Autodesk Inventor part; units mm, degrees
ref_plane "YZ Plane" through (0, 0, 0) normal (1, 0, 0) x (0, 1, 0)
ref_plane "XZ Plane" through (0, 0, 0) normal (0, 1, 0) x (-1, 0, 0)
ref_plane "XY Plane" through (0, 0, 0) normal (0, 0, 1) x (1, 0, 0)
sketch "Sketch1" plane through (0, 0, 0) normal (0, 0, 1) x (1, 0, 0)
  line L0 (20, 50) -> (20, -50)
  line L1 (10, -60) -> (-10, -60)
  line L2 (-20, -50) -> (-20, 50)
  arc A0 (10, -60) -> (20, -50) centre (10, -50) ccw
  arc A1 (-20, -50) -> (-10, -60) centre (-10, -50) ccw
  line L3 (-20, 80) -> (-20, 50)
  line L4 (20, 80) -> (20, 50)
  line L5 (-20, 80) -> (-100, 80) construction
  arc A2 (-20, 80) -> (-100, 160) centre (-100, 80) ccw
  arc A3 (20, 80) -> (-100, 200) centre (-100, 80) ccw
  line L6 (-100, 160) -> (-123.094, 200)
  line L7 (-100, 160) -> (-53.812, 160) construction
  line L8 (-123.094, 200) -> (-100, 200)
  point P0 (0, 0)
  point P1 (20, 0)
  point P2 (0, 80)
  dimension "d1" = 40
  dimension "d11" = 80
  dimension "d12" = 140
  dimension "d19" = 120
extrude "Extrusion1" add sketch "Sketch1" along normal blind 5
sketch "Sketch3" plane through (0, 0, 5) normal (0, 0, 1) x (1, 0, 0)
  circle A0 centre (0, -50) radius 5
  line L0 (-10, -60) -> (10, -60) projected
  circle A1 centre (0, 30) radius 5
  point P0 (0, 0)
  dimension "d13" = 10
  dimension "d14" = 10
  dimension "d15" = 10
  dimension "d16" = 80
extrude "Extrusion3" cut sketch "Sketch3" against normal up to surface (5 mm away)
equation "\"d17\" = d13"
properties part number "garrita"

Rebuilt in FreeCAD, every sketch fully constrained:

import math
import FreeCAD as App
import Part
import Sketcher

V = App.Vector
Q = App.Units.Quantity

doc = App.newDocument("Part")
body = doc.addObject("PartDesign::Body", "Body")

sketch1 = doc.addObject("Sketcher::SketchObject", "Sketch")
body.addObject(sketch1)
sketch1.AttachmentSupport = (doc.XY_Plane, [""])
sketch1.MapMode = "FlatFace"
sketch1.addGeometry([
    Part.LineSegment(V(20, -50, 0), V(20, 80, 0)),
    Part.ArcOfCircle(Part.Circle(V(-100, 80, 0), V(0, 0, 1), 120), math.radians(0), math.radians(90)),
    Part.LineSegment(V(-100, 200, 0), V(-123.094, 200, 0)),
    Part.LineSegment(V(-123.094, 200, 0), V(-100, 160, 0)),
    Part.ArcOfCircle(Part.Circle(V(-100, 80, 0), V(0, 0, 1), 80), math.radians(0), math.radians(90)),
    Part.LineSegment(V(-20, 80, 0), V(-20, -50, 0)),
    Part.ArcOfCircle(Part.Circle(V(-10, -50, 0), V(0, 0, 1), 10), math.radians(180), math.radians(270)),
    Part.LineSegment(V(-10, -60, 0), V(10, -60, 0)),
    Part.ArcOfCircle(Part.Circle(V(10, -50, 0), V(0, 0, 1), 10), math.radians(-90), math.radians(0)),
], False)
sketch1.addConstraint([
    Sketcher.Constraint("Tangent", 0, 2, 1, 1),
    Sketcher.Constraint("Tangent", 1, 2, 2, 1),
    Sketcher.Constraint("Coincident", 2, 2, 3, 1),
    Sketcher.Constraint("Coincident", 3, 2, 4, 2),
    Sketcher.Constraint("Tangent", 4, 1, 5, 1),
    Sketcher.Constraint("Tangent", 5, 2, 6, 1),
    Sketcher.Constraint("Tangent", 6, 2, 7, 1),
    Sketcher.Constraint("Tangent", 7, 2, 8, 1),
    Sketcher.Constraint("Tangent", 8, 2, 0, 1),
    Sketcher.Constraint("Vertical", 0),
    Sketcher.Constraint("Horizontal", 2),
    Sketcher.Constraint("Vertical", 5),
    Sketcher.Constraint("Horizontal", 7),
    Sketcher.Constraint("Coincident", 4, 3, 1, 3),
    Sketcher.Constraint("Equal", 6, 8),
    Sketcher.Constraint("Vertical", 1, 2, 3, 2),
    Sketcher.Constraint("Radius", 1, Q("120 mm")),
    Sketcher.Constraint("Radius", 4, Q("80 mm")),
    Sketcher.Constraint("DistanceY", -1, 1, 1, 3, Q("80 mm")),
    Sketcher.Constraint("Radius", 6, Q("10 mm")),
    Sketcher.Constraint("DistanceY", 6, 2, 4, 1, Q("140 mm")),
    Sketcher.Constraint("Angle", 3, Q("-60 deg")),
    Sketcher.Constraint("DistanceX", 1, 3, -1, 1, Q("100 mm")),
])
pad1 = doc.addObject("PartDesign::Pad", "Pad")
body.addObject(pad1)
pad1.Profile = sketch1
pad1.Length = 5

sketch2 = doc.addObject("Sketcher::SketchObject", "Sketch001")
body.addObject(sketch2)
sketch2.AttachmentSupport = (doc.XY_Plane, [""])
sketch2.MapMode = "FlatFace"
sketch2.AttachmentOffset = App.Placement(V(0, 0, 5), App.Rotation())
sketch2.addGeometry([
    Part.Circle(V(0, -50, 0), V(0, 0, 1), 5),
    Part.Circle(V(0, 30, 0), V(0, 0, 1), 5),
], False)
sketch2.addConstraint([
    Sketcher.Constraint("Equal", 0, 1),
    Sketcher.Constraint("PointOnObject", 0, 3, -2),
    Sketcher.Constraint("PointOnObject", 1, 3, -2),
    Sketcher.Constraint("Diameter", 0, Q("10 mm")),
    Sketcher.Constraint("DistanceY", 0, 3, 1, 3, Q("80 mm")),
    Sketcher.Constraint("DistanceY", 0, 3, -1, 1, Q("50 mm")),
])
pocket1 = doc.addObject("PartDesign::Pocket", "Pocket")
body.addObject(pocket1)
pocket1.Profile = sketch2
pocket1.Length = 5

doc.recompute()
